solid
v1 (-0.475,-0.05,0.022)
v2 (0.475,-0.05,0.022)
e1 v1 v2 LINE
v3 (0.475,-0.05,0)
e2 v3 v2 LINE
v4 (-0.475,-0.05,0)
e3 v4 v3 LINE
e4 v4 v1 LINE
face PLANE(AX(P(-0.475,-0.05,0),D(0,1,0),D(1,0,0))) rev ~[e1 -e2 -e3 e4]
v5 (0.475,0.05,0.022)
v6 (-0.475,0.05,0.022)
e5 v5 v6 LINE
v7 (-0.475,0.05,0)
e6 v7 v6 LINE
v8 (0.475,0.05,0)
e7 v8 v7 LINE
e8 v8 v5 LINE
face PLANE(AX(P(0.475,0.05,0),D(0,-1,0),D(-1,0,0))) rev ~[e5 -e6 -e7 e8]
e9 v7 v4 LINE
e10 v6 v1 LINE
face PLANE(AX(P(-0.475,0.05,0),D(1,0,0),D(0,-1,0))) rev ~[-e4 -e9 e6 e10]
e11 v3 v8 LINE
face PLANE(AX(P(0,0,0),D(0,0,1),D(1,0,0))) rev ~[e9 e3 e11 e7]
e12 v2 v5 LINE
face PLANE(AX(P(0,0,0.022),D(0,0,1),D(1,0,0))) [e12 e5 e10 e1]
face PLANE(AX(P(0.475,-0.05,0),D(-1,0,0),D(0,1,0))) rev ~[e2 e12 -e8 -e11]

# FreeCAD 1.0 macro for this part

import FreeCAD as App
import Part
import Sketcher
Q = App.Units.Quantity


def add_polygon(sketch, points):
    """Adds a closed chain of lines whose ends are joined by coincident constraints."""
    first, n = sketch.GeometryCount, len(points)
    for a, b in zip(points, points[1:] + points[:1]):
        sketch.addGeometry(Part.LineSegment(App.Vector(*a, 0), App.Vector(*b, 0)), False)
    for i in range(n):
        sketch.addConstraint(Sketcher.Constraint("Coincident", first + i, 2, first + (i + 1) % n, 1))

doc = App.newDocument("Part")
body = doc.addObject("PartDesign::Body", "Body")

# Sketch on XY plane
sketch1 = body.newObject("Sketcher::SketchObject", "Sketch")
sketch1.AttachmentSupport = (doc.getObject("XY_Plane"), [""])
sketch1.MapMode = "FlatFace"
add_polygon(sketch1, [(-0.475, 0.05), (-0.475, -0.05), (0.475, -0.05), (0.475, 0.05)])  # lines 0-3
sketch1.addConstraint([
    Sketcher.Constraint("Vertical", 0),
    Sketcher.Constraint("Horizontal", 1),
    Sketcher.Constraint("Vertical", 2),
    Sketcher.Constraint("Horizontal", 3),
    Sketcher.Constraint("Symmetric", 0, 2, 2, 2, -1, 1),
    Sketcher.Constraint("DistanceY", 0, 2, 0, 1, Q("0.1 mm")),
    Sketcher.Constraint("DistanceX", 0, 2, -1, 1, Q("0.475 mm")),
])
pad1 = body.newObject("PartDesign::Pad", "Pad")
pad1.Profile = sketch1
pad1.Length = 0.022

doc.recompute()
